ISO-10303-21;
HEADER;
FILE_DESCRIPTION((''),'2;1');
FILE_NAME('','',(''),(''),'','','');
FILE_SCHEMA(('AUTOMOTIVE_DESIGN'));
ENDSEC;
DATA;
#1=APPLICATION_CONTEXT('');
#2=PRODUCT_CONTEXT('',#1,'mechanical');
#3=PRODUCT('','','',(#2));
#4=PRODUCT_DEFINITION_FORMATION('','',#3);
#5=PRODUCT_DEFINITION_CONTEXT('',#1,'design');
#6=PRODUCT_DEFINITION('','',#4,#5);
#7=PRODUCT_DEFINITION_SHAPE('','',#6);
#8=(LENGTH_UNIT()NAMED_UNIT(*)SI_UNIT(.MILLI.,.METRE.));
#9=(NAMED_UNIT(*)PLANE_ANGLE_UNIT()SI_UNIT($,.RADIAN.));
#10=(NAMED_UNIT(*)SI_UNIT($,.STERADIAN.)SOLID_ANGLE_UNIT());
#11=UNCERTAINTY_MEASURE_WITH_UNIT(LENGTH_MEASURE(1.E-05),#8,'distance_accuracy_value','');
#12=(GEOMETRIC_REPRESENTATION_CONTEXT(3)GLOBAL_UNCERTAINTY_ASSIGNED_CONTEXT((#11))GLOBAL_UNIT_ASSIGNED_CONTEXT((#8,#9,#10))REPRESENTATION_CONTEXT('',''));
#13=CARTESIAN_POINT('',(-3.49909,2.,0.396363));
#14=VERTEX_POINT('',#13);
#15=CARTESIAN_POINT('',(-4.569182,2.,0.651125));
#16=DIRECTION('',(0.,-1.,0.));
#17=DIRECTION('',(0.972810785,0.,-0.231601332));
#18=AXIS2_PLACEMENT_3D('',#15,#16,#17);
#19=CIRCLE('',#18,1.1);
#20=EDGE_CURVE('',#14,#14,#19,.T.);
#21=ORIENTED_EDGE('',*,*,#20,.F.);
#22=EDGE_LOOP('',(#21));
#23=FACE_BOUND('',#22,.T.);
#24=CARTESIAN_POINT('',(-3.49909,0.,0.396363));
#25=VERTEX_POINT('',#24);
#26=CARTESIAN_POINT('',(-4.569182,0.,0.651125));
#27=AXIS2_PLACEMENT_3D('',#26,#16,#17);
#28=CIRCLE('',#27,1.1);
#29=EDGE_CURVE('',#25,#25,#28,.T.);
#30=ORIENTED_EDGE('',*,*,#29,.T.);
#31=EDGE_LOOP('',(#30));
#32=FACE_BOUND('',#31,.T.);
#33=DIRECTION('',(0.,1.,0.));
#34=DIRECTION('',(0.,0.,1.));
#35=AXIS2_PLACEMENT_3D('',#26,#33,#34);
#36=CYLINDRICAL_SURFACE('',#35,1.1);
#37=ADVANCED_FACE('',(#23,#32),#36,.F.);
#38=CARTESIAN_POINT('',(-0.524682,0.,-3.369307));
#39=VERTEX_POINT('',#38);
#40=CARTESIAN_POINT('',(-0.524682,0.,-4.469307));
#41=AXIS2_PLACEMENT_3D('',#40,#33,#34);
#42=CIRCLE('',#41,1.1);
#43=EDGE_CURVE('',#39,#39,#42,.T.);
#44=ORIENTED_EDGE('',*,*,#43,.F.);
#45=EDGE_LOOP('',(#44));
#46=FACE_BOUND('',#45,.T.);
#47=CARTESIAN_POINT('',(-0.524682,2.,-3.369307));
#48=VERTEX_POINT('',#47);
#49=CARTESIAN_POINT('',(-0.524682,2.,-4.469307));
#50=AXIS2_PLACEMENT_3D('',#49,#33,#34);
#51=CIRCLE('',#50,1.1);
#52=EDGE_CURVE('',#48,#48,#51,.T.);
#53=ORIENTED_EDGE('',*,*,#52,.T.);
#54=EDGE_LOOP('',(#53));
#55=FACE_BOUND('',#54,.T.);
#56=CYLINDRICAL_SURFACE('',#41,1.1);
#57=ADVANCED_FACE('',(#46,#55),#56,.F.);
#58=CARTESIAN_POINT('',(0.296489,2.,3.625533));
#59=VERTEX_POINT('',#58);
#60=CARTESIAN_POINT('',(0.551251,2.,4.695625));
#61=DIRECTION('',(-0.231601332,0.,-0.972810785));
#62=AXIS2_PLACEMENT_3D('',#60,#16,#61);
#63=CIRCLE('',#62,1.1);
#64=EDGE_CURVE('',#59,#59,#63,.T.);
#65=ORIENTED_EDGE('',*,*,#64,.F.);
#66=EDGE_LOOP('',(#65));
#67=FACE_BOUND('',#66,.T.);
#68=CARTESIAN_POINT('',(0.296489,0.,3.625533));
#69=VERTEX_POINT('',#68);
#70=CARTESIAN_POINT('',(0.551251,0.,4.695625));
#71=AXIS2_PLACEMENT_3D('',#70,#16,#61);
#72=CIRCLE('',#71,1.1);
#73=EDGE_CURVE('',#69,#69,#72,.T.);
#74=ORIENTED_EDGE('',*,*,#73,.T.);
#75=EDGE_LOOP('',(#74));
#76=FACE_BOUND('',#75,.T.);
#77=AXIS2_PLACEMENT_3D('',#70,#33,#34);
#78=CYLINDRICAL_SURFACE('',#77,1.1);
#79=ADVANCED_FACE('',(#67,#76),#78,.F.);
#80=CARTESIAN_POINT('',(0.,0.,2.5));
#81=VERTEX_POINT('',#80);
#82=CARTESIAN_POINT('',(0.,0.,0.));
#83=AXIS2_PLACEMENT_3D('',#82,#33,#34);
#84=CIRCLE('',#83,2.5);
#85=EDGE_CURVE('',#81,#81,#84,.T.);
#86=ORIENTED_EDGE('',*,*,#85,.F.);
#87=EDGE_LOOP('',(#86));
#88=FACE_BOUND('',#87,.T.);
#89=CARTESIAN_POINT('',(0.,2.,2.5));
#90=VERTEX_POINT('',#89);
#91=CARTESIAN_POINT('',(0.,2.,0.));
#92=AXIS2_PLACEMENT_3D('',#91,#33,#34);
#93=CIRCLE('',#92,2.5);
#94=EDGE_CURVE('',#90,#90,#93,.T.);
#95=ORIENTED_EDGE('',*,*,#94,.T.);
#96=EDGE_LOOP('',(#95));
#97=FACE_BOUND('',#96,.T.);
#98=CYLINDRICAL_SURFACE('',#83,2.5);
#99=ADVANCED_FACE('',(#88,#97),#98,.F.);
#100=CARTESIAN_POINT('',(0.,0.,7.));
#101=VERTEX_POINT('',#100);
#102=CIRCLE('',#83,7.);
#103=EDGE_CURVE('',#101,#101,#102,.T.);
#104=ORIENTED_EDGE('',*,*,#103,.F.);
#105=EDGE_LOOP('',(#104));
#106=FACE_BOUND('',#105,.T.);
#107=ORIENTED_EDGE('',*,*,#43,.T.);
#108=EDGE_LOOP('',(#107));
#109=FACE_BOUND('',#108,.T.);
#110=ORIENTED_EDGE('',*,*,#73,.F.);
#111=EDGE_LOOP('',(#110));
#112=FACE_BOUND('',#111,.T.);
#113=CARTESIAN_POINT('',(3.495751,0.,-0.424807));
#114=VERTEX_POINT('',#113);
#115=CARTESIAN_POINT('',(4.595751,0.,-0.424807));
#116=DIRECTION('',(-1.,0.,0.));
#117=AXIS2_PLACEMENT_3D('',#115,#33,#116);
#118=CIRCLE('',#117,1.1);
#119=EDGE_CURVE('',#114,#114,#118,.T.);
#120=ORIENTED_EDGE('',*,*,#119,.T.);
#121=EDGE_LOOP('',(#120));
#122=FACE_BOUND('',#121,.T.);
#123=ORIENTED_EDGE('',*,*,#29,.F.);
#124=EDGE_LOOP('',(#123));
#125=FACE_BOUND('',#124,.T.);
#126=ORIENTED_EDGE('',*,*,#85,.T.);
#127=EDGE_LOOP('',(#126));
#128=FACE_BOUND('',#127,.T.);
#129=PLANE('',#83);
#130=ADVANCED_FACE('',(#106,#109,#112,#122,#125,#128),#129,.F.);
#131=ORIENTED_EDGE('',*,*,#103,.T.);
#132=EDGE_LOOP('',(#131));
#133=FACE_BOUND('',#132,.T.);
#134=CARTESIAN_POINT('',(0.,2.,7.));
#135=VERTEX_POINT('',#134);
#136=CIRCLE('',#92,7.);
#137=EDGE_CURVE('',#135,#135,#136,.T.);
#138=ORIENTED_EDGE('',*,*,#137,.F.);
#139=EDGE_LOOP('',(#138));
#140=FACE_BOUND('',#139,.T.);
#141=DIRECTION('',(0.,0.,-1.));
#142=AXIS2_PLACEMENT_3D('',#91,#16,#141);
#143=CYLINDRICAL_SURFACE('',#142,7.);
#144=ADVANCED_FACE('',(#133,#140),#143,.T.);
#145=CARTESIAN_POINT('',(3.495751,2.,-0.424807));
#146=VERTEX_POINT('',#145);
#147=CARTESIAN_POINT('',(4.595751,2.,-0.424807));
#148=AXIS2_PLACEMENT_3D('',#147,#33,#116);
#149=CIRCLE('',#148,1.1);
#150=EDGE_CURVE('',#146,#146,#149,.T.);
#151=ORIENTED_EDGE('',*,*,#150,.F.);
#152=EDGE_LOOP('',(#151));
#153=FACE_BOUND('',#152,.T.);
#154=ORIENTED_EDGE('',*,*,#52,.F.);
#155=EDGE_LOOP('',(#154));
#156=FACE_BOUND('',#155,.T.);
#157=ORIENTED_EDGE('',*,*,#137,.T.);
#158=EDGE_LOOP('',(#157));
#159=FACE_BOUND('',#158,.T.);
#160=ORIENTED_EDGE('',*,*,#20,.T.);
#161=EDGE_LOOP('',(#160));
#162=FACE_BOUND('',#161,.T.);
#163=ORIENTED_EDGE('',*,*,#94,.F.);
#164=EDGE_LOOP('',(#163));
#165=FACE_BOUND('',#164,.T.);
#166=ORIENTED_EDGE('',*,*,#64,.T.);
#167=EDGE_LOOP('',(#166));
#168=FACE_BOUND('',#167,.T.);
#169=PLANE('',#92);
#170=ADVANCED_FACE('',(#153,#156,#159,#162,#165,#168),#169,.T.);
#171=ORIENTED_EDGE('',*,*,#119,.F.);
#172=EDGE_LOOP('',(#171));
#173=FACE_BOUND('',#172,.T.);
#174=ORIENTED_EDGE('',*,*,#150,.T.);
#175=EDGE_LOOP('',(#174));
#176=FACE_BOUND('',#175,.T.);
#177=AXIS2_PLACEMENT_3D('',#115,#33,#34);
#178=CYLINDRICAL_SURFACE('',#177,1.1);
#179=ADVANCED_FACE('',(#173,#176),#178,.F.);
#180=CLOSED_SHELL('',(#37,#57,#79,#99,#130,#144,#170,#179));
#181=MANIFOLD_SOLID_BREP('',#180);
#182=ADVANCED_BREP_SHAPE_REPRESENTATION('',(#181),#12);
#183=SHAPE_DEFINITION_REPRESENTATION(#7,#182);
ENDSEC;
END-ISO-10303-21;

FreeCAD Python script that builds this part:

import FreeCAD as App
import Part
import Sketcher
from FreeCAD import Vector

doc = App.newDocument("Part")
body = doc.addObject("PartDesign::Body", "Body")

# Sketch on XZ plane
sketch1 = body.newObject("Sketcher::SketchObject", "Sketch")
sketch1.AttachmentSupport = (doc.getObject("XZ_Plane"), [""])
sketch1.MapMode = "FlatFace"
sketch1.addGeometry(Part.Circle(Vector(0, 0, 0), Vector(0, 0, 1), 7), False)
sketch1.addConstraint(Sketcher.Constraint("Coincident", 0, 3, -1, 1))
sketch1.addConstraint(Sketcher.Constraint("Diameter", 0, 14.0))
pad1 = body.newObject("PartDesign::Pad", "Pad")
pad1.Profile = sketch1
pad1.Length = 2
pad1.Reversed = True

# Sketch on XZ plane
sketch2 = body.newObject("Sketcher::SketchObject", "Sketch001")
sketch2.AttachmentSupport = (doc.getObject("XZ_Plane"), [""])
sketch2.MapMode = "FlatFace"
sketch2.AttachmentOffset = App.Placement(Vector(0, 0, -2), App.Rotation())
sketch2.addGeometry(Part.Circle(Vector(-0.5, -4.5, 0), Vector(0, 0, 1), 1.1), False)
sketch2.addConstraint(Sketcher.Constraint("Diameter", 0, 2.2))
sketch2.addConstraint(Sketcher.Constraint("DistanceX", 0, 3, -1, 1, 0.524682))
sketch2.addConstraint(Sketcher.Constraint("DistanceY", 0, 3, -1, 1, 4.469307))
pocket1 = body.newObject("PartDesign::Pocket", "Pocket")
pocket1.Profile = sketch2
pocket1.Length = 2
pocket1.Reversed = True
doc.recompute()

datumplane = body.newObject("PartDesign::Plane", "DatumPlane")
datumplane.Placement = App.Placement(Vector(0.013284, 0, 0.113159), App.Rotation(Vector(-0.993179436, 0, 0.116595916), Vector(0, -1, 0), Vector(0.116595916, 0, 0.993179436), "ZXY"))
mirrored = body.newObject("PartDesign::Mirrored", "Mirrored")
mirrored.Originals = [pocket1]
mirrored.MirrorPlane = (datumplane, [""])
body.Tip = mirrored
doc.recompute()

datumline = body.newObject("PartDesign::Line", "DatumLine")
datumline.Placement = App.Placement(Vector(0.013284, 0, 0.113159), App.Rotation(Vector(0, 0, 1), Vector(0, -1, 0)))
polarpattern = body.newObject("PartDesign::PolarPattern", "PolarPattern")
polarpattern.Originals = [pocket1]
polarpattern.Axis = (datumline, [""])
polarpattern.Angle = 90
polarpattern.Occurrences = 2
body.Tip = polarpattern

# Sketch on XZ plane
sketch3 = body.newObject("Sketcher::SketchObject", "Sketch002")
sketch3.AttachmentSupport = (doc.getObject("XZ_Plane"), [""])
sketch3.MapMode = "FlatFace"
sketch3.AttachmentOffset = App.Placement(Vector(0, 0, -2), App.Rotation())
sketch3.addGeometry(Part.Circle(Vector(-4.6, 0.7, 0), Vector(0, 0, 1), 1.1), False)
sketch3.addConstraint(Sketcher.Constraint("Diameter", 0, 2.2))
sketch3.addConstraint(Sketcher.Constraint("DistanceX", 0, 3, -1, 1, 4.569182))
sketch3.addConstraint(Sketcher.Constraint("DistanceY", -1, 1, 0, 3, 0.651125))
pocket2 = body.newObject("PartDesign::Pocket", "Pocket001")
pocket2.Profile = sketch3
pocket2.Length = 2
pocket2.Reversed = True

# Sketch on XZ plane
sketch4 = body.newObject("Sketcher::SketchObject", "Sketch003")
sketch4.AttachmentSupport = (doc.getObject("XZ_Plane"), [""])
sketch4.MapMode = "FlatFace"
sketch4.AttachmentOffset = App.Placement(Vector(0, 0, -2), App.Rotation())
sketch4.addGeometry(Part.Circle(Vector(0, 0, 0), Vector(0, 0, 1), 2.5), False)
sketch4.addConstraint(Sketcher.Constraint("Coincident", 0, 3, -1, 1))
sketch4.addConstraint(Sketcher.Constraint("Diameter", 0, 5.0))
pocket3 = body.newObject("PartDesign::Pocket", "Pocket002")
pocket3.Profile = sketch4
pocket3.Length = 2
pocket3.Reversed = True

doc.recompute()
